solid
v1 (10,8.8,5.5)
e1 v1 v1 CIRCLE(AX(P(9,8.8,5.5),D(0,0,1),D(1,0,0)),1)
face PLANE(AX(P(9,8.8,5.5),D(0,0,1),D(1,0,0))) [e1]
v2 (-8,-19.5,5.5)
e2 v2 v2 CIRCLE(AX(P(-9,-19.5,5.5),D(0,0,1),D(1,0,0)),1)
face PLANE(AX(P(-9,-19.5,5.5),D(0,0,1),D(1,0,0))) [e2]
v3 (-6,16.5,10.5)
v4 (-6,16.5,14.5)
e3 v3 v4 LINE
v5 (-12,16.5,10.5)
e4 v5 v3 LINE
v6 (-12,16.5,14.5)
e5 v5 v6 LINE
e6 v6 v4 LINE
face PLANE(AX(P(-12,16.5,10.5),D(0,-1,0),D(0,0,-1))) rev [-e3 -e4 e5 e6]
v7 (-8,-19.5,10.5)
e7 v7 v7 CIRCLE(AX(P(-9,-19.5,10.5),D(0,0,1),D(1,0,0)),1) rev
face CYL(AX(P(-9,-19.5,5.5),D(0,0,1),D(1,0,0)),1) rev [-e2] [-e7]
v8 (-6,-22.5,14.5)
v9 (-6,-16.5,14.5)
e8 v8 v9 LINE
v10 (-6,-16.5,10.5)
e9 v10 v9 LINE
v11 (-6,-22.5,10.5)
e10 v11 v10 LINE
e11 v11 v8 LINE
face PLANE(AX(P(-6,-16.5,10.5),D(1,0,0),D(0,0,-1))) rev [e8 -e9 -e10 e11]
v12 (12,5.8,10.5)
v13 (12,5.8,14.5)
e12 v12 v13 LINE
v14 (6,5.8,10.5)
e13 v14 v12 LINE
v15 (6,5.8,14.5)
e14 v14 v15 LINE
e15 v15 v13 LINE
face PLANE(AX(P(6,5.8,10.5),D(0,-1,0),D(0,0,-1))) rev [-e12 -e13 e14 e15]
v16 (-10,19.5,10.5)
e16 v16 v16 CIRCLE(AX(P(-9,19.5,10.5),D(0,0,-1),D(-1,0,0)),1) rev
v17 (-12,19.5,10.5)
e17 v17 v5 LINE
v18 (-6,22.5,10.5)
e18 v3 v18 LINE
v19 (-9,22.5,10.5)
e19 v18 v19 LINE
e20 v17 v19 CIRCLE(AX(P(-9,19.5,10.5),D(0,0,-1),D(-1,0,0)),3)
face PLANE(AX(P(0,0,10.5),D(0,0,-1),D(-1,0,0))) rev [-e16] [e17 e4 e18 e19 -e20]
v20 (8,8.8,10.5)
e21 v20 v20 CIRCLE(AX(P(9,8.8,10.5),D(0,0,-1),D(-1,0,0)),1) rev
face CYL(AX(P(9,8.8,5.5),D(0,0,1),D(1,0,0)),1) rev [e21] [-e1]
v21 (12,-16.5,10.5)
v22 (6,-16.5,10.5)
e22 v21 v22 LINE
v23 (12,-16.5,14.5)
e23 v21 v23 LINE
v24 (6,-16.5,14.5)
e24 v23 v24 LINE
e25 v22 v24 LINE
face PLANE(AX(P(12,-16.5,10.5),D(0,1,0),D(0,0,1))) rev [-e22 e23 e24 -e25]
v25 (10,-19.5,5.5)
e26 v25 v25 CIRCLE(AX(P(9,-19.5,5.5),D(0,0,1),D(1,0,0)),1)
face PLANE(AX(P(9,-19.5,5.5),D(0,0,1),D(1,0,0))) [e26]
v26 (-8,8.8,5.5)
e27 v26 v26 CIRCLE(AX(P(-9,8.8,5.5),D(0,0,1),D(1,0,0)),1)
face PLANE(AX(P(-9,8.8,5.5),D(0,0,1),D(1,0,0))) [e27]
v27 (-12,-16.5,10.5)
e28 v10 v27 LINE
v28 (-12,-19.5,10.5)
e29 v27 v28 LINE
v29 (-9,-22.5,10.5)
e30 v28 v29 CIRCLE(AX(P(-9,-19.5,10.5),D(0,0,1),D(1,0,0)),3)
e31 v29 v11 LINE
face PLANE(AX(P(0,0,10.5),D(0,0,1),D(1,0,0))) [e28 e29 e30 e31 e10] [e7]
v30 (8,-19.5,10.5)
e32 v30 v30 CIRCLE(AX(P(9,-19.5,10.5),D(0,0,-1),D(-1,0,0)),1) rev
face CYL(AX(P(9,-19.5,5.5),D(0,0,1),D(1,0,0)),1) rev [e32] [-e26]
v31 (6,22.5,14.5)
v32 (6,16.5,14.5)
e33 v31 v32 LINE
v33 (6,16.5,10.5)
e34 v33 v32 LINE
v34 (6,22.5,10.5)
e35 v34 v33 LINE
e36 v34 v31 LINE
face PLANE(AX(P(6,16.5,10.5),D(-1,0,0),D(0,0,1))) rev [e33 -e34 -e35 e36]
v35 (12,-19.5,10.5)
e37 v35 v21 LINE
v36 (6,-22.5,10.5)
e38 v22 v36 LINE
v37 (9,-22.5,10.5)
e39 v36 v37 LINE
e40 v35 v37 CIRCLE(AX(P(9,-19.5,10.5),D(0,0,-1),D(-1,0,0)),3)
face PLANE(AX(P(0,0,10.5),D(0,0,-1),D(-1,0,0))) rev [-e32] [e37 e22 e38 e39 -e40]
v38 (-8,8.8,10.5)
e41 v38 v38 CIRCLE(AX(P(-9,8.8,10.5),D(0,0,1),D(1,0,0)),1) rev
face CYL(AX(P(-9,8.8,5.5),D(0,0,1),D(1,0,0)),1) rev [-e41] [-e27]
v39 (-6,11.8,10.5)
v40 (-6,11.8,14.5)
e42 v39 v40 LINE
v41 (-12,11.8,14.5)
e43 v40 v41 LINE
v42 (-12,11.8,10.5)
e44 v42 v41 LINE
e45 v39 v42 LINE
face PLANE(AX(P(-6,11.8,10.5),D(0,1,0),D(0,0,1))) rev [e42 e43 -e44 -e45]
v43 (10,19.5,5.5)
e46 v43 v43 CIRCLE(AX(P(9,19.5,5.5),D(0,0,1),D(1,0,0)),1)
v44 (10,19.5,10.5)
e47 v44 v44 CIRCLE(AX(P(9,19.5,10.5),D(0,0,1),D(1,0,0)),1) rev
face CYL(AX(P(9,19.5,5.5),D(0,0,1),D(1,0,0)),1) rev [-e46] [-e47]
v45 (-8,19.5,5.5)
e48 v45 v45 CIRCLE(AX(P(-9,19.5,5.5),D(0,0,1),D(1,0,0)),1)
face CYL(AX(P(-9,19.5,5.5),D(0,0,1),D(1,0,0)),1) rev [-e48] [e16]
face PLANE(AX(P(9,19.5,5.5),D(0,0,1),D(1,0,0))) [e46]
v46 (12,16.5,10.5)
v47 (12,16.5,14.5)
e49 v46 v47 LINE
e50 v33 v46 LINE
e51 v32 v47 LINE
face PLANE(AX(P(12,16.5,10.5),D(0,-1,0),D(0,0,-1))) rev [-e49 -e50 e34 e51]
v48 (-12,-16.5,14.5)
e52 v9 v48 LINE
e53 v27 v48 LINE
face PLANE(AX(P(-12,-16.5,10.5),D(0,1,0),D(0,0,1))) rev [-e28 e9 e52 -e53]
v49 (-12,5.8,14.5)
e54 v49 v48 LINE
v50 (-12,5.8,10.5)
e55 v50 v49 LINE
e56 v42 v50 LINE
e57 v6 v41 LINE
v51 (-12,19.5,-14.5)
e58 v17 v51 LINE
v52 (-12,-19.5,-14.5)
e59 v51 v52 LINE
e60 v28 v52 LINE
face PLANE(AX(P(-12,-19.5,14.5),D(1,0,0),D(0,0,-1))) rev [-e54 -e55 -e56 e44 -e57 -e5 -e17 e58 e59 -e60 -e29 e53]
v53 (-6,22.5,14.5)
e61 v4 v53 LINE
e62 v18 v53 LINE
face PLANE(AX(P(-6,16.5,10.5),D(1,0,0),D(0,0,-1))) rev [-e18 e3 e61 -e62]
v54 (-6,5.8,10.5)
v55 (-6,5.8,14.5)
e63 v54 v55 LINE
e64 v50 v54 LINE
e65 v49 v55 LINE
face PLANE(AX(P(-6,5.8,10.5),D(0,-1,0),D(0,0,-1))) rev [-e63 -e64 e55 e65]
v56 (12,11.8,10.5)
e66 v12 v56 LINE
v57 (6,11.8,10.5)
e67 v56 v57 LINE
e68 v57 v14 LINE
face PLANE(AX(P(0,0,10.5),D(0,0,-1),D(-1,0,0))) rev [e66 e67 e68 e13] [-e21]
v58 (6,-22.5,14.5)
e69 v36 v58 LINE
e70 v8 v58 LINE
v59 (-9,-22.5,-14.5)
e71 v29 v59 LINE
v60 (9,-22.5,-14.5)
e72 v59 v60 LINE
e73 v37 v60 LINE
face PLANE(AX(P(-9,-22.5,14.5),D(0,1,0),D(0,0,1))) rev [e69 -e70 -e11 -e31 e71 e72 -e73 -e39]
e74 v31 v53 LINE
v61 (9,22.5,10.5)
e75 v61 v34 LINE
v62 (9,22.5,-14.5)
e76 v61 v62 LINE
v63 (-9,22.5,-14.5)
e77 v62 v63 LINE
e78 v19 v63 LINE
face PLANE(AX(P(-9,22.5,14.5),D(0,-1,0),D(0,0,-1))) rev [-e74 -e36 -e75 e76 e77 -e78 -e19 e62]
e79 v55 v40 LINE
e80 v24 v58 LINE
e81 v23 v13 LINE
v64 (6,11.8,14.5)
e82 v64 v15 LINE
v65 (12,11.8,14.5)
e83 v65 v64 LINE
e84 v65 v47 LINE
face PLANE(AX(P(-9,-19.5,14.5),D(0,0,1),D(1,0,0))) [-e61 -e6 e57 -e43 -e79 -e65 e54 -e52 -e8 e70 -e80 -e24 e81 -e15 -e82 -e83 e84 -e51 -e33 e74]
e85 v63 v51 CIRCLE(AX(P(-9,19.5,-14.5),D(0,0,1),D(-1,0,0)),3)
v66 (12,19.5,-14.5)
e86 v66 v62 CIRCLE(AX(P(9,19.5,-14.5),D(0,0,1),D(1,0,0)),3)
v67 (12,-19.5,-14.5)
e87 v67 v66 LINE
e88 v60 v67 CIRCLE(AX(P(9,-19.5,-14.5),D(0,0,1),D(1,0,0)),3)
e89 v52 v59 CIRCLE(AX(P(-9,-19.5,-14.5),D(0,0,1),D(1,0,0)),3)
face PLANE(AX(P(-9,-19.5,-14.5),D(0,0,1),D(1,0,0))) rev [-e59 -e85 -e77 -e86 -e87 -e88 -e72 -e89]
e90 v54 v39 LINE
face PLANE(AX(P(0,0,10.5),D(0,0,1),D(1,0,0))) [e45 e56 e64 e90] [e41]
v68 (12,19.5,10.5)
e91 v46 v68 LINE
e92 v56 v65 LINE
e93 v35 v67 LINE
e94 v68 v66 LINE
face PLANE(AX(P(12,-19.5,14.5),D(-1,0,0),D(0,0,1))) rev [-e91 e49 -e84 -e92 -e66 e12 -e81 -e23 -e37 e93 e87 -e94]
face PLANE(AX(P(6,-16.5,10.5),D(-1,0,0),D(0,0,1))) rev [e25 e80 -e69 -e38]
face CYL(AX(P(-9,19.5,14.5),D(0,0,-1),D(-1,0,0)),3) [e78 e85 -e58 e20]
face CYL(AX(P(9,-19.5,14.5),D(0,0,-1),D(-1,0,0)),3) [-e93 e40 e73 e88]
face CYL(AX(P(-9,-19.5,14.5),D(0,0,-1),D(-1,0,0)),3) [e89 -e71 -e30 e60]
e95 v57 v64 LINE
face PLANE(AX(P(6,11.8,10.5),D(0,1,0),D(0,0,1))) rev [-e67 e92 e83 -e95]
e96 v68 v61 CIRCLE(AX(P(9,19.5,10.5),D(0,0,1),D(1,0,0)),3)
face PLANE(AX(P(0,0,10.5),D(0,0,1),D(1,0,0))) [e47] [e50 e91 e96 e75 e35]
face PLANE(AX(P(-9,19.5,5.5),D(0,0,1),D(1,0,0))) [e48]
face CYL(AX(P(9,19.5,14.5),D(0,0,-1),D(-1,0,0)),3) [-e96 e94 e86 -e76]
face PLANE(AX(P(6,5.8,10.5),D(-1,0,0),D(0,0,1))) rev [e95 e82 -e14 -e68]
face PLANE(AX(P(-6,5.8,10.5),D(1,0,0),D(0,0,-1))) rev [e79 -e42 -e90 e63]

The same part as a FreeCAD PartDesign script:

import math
import FreeCAD as App
import Part
import Sketcher

doc = App.newDocument("Part")
body = doc.addObject("PartDesign::Body", "Body")

sketch1 = body.newObject("Sketcher::SketchObject", "Sketch")
sketch1.AttachmentSupport = (doc.getObject("XY_Plane"), [""])
sketch1.MapMode = "FlatFace"
sketch1.addGeometry([
    Part.LineSegment(App.Vector(-9, -22.5, 0), App.Vector(9, -22.5, 0)),
    Part.ArcOfCircle(Part.Circle(App.Vector(9, -19.5, 0), App.Vector(0, 0, 1), 3), math.radians(-90), math.radians(0)),
    Part.LineSegment(App.Vector(12, -19.5, 0), App.Vector(12, 19.5, 0)),
    Part.ArcOfCircle(Part.Circle(App.Vector(9, 19.5, 0), App.Vector(0, 0, 1), 3), math.radians(0), math.radians(90)),
    Part.LineSegment(App.Vector(9, 22.5, 0), App.Vector(-9, 22.5, 0)),
    Part.ArcOfCircle(Part.Circle(App.Vector(-9, 19.5, 0), App.Vector(0, 0, 1), 3), math.radians(90), math.radians(180)),
    Part.LineSegment(App.Vector(-12, 19.5, 0), App.Vector(-12, -19.5, 0)),
    Part.ArcOfCircle(Part.Circle(App.Vector(-9, -19.5, 0), App.Vector(0, 0, 1), 3), math.radians(180), math.radians(270)),
], False)
sketch1.addConstraint([
    Sketcher.Constraint("Tangent", 0, 2, 1, 1),
    Sketcher.Constraint("Tangent", 1, 2, 2, 1),
    Sketcher.Constraint("Tangent", 2, 2, 3, 1),
    Sketcher.Constraint("Tangent", 3, 2, 4, 1),
    Sketcher.Constraint("Tangent", 4, 2, 5, 1),
    Sketcher.Constraint("Tangent", 5, 2, 6, 1),
    Sketcher.Constraint("Tangent", 6, 2, 7, 1),
    Sketcher.Constraint("Tangent", 7, 2, 0, 1),
    Sketcher.Constraint("Horizontal", 0),
    Sketcher.Constraint("Vertical", 2),
    Sketcher.Constraint("Horizontal", 4),
    Sketcher.Constraint("Vertical", 6),
    Sketcher.Constraint("Equal", 1, 3),
    Sketcher.Constraint("Equal", 3, 5),
    Sketcher.Constraint("Equal", 5, 7),
    Sketcher.Constraint("Symmetric", 1, 3, 5, 3, -1, 1),
    Sketcher.Constraint("Radius", 1, 3.0),
    Sketcher.Constraint("DistanceX", 0, 1, 0, 2, 18.0),
    Sketcher.Constraint("DistanceY", 2, 1, 2, 2, 39.0),
])
pad1 = body.newObject("PartDesign::Pad", "Pad")
pad1.Profile = sketch1
pad1.Length = 29
pad1.Midplane = True

sketch2 = body.newObject("Sketcher::SketchObject", "Sketch001")
sketch2.AttachmentSupport = (doc.getObject("XY_Plane"), [""])
sketch2.MapMode = "FlatFace"
sketch2.AttachmentOffset = App.Placement(App.Vector(0, 0, 14.5), App.Rotation())
sketch2.addGeometry([
    Part.Circle(App.Vector(9, 19.5, 0), App.Vector(0, 0, 1), 1),
    Part.Circle(App.Vector(-9, 19.5, 0), App.Vector(0, 0, 1), 1),
    Part.Circle(App.Vector(-9, 8.8, 0), App.Vector(0, 0, 1), 1),
    Part.Circle(App.Vector(9, 8.8, 0), App.Vector(0, 0, 1), 1),
    Part.Circle(App.Vector(-9, -19.5, 0), App.Vector(0, 0, 1), 1),
    Part.Circle(App.Vector(9, -19.5, 0), App.Vector(0, 0, 1), 1),
], False)
sketch2.addConstraint([
    Sketcher.Constraint("Equal", 0, 1),
    Sketcher.Constraint("Equal", 1, 2),
    Sketcher.Constraint("Equal", 2, 3),
    Sketcher.Constraint("Equal", 3, 4),
    Sketcher.Constraint("Equal", 4, 5),
    Sketcher.Constraint("Symmetric", 0, 3, 4, 3, -1, 1),
    Sketcher.Constraint("Symmetric", 1, 3, 5, 3, -1, 1),
    Sketcher.Constraint("Symmetric", 0, 3, 1, 3, -2),
    Sketcher.Constraint("Symmetric", 2, 3, 3, 3, -2),
    Sketcher.Constraint("Vertical", 1, 3, 2, 3),
    Sketcher.Constraint("Diameter", 0, 2.0),
    Sketcher.Constraint("DistanceX", -1, 1, 0, 3, 9.0),
    Sketcher.Constraint("DistanceY", 4, 3, 1, 3, 39.0),
    Sketcher.Constraint("DistanceY", -1, 1, 2, 3, 8.8),
])
pocket1 = body.newObject("PartDesign::Pocket", "Pocket")
pocket1.Profile = sketch2
pocket1.Length = 9

sketch3 = body.newObject("Sketcher::SketchObject", "Sketch002")
sketch3.AttachmentSupport = (doc.getObject("XY_Plane"), [""])
sketch3.MapMode = "FlatFace"
sketch3.AttachmentOffset = App.Placement(App.Vector(0, 0, 14.5), App.Rotation())
sketch3.addGeometry([
    Part.LineSegment(App.Vector(-12, 22, 0), App.Vector(-12, 16, 0)),
    Part.LineSegment(App.Vector(-12, 16, 0), App.Vector(-6, 16, 0)),
    Part.LineSegment(App.Vector(-6, 16, 0), App.Vector(-6, 22, 0)),
    Part.LineSegment(App.Vector(-6, 22, 0), App.Vector(-12, 22, 0)),
    Part.LineSegment(App.Vector(6, 22, 0), App.Vector(6, 16, 0)),
    Part.LineSegment(App.Vector(6, 16, 0), App.Vector(12, 16, 0)),
    Part.LineSegment(App.Vector(12, 16, 0), App.Vector(12, 22, 0)),
    Part.LineSegment(App.Vector(12, 22, 0), App.Vector(6, 22, 0)),
    Part.LineSegment(App.Vector(6, 12, 0), App.Vector(6, 6, 0)),
    Part.LineSegment(App.Vector(6, 6, 0), App.Vector(12, 6, 0)),
    Part.LineSegment(App.Vector(12, 6, 0), App.Vector(12, 12, 0)),
    Part.LineSegment(App.Vector(12, 12, 0), App.Vector(6, 12, 0)),
    Part.LineSegment(App.Vector(-12, 12, 0), App.Vector(-12, 6, 0)),
    Part.LineSegment(App.Vector(-12, 6, 0), App.Vector(-6, 6, 0)),
    Part.LineSegment(App.Vector(-6, 6, 0), App.Vector(-6, 12, 0)),
    Part.LineSegment(App.Vector(-6, 12, 0), App.Vector(-12, 12, 0)),
    Part.LineSegment(App.Vector(-12, -16, 0), App.Vector(-12, -22, 0)),
    Part.LineSegment(App.Vector(-12, -22, 0), App.Vector(-6, -22, 0)),
    Part.LineSegment(App.Vector(-6, -22, 0), App.Vector(-6, -16, 0)),
    Part.LineSegment(App.Vector(-6, -16, 0), App.Vector(-12, -16, 0)),
    Part.LineSegment(App.Vector(6, -16, 0), App.Vector(6, -22, 0)),
    Part.LineSegment(App.Vector(6, -22, 0), App.Vector(12, -22, 0)),
    Part.LineSegment(App.Vector(12, -22, 0), App.Vector(12, -16, 0)),
    Part.LineSegment(App.Vector(12, -16, 0), App.Vector(6, -16, 0)),
], False)
sketch3.addConstraint([
    Sketcher.Constraint("Coincident", 0, 2, 1, 1),
    Sketcher.Constraint("Coincident", 1, 2, 2, 1),
    Sketcher.Constraint("Coincident", 2, 2, 3, 1),
    Sketcher.Constraint("Coincident", 3, 2, 0, 1),
    Sketcher.Constraint("Coincident", 4, 2, 5, 1),
    Sketcher.Constraint("Coincident", 5, 2, 6, 1),
    Sketcher.Constraint("Coincident", 6, 2, 7, 1),
    Sketcher.Constraint("Coincident", 7, 2, 4, 1),
    Sketcher.Constraint("Coincident", 8, 2, 9, 1),
    Sketcher.Constraint("Coincident", 9, 2, 10, 1),
    Sketcher.Constraint("Coincident", 10, 2, 11, 1),
    Sketcher.Constraint("Coincident", 11, 2, 8, 1),
    Sketcher.Constraint("Coincident", 12, 2, 13, 1),
    Sketcher.Constraint("Coincident", 13, 2, 14, 1),
    Sketcher.Constraint("Coincident", 14, 2, 15, 1),
    Sketcher.Constraint("Coincident", 15, 2, 12, 1),
    Sketcher.Constraint("Coincident", 16, 2, 17, 1),
    Sketcher.Constraint("Coincident", 17, 2, 18, 1),
    Sketcher.Constraint("Coincident", 18, 2, 19, 1),
    Sketcher.Constraint("Coincident", 19, 2, 16, 1),
    Sketcher.Constraint("Coincident", 20, 2, 21, 1),
    Sketcher.Constraint("Coincident", 21, 2, 22, 1),
    Sketcher.Constraint("Coincident", 22, 2, 23, 1),
    Sketcher.Constraint("Coincident", 23, 2, 20, 1),
    Sketcher.Constraint("Vertical", 0),
    Sketcher.Constraint("Horizontal", 1),
    Sketcher.Constraint("Vertical", 2),
    Sketcher.Constraint("Horizontal", 3),
    Sketcher.Constraint("Vertical", 4),
    Sketcher.Constraint("Horizontal", 5),
    Sketcher.Constraint("Vertical", 6),
    Sketcher.Constraint("Horizontal", 7),
    Sketcher.Constraint("Vertical", 8),
    Sketcher.Constraint("Horizontal", 9),
    Sketcher.Constraint("Vertical", 10),
    Sketcher.Constraint("Horizontal", 11),
    Sketcher.Constraint("Vertical", 12),
    Sketcher.Constraint("Horizontal", 13),
    Sketcher.Constraint("Vertical", 14),
    Sketcher.Constraint("Horizontal", 15),
    Sketcher.Constraint("Vertical", 16),
    Sketcher.Constraint("Horizontal", 17),
    Sketcher.Constraint("Vertical", 18),
    Sketcher.Constraint("Horizontal", 19),
    Sketcher.Constraint("Vertical", 20),
    Sketcher.Constraint("Horizontal", 21),
    Sketcher.Constraint("Vertical", 22),
    Sketcher.Constraint("Horizontal", 23),
    Sketcher.Constraint("Symmetric", 6, 2, 16, 2, -1, 1),
    Sketcher.Constraint("Symmetric", 4, 2, 18, 2, -1, 1),
    Sketcher.Constraint("Symmetric", 2, 2, 20, 2, -1, 1),
    Sketcher.Constraint("Symmetric", 0, 2, 22, 2, -1, 1),
    Sketcher.Constraint("Symmetric", 1, 2, 4, 2, -2),
    Sketcher.Constraint("Symmetric", 3, 2, 6, 2, -2),
    Sketcher.Constraint("Symmetric", 9, 2, 12, 2, -2),
    Sketcher.Constraint("Symmetric", 11, 2, 14, 2, -2),
    Sketcher.Constraint("Vertical", 7, 2, 8, 2),
    Sketcher.Constraint("Vertical", 6, 2, 9, 2),
    Sketcher.Constraint("Equal", 23, 0),
    Sketcher.Constraint("Equal", 6, 8),
    Sketcher.Constraint("DistanceX", 1, 1, 1, 2, 6.0),
    Sketcher.Constraint("DistanceX", 0, 2, -1, 1, 12.0),
    Sketcher.Constraint("DistanceY", -1, 1, 0, 2, 16.5),
    Sketcher.Constraint("DistanceY", -1, 1, 8, 2, 5.8),
])
pocket2 = body.newObject("PartDesign::Pocket", "Pocket001")
pocket2.Profile = sketch3
pocket2.Length = 4

doc.recompute()
